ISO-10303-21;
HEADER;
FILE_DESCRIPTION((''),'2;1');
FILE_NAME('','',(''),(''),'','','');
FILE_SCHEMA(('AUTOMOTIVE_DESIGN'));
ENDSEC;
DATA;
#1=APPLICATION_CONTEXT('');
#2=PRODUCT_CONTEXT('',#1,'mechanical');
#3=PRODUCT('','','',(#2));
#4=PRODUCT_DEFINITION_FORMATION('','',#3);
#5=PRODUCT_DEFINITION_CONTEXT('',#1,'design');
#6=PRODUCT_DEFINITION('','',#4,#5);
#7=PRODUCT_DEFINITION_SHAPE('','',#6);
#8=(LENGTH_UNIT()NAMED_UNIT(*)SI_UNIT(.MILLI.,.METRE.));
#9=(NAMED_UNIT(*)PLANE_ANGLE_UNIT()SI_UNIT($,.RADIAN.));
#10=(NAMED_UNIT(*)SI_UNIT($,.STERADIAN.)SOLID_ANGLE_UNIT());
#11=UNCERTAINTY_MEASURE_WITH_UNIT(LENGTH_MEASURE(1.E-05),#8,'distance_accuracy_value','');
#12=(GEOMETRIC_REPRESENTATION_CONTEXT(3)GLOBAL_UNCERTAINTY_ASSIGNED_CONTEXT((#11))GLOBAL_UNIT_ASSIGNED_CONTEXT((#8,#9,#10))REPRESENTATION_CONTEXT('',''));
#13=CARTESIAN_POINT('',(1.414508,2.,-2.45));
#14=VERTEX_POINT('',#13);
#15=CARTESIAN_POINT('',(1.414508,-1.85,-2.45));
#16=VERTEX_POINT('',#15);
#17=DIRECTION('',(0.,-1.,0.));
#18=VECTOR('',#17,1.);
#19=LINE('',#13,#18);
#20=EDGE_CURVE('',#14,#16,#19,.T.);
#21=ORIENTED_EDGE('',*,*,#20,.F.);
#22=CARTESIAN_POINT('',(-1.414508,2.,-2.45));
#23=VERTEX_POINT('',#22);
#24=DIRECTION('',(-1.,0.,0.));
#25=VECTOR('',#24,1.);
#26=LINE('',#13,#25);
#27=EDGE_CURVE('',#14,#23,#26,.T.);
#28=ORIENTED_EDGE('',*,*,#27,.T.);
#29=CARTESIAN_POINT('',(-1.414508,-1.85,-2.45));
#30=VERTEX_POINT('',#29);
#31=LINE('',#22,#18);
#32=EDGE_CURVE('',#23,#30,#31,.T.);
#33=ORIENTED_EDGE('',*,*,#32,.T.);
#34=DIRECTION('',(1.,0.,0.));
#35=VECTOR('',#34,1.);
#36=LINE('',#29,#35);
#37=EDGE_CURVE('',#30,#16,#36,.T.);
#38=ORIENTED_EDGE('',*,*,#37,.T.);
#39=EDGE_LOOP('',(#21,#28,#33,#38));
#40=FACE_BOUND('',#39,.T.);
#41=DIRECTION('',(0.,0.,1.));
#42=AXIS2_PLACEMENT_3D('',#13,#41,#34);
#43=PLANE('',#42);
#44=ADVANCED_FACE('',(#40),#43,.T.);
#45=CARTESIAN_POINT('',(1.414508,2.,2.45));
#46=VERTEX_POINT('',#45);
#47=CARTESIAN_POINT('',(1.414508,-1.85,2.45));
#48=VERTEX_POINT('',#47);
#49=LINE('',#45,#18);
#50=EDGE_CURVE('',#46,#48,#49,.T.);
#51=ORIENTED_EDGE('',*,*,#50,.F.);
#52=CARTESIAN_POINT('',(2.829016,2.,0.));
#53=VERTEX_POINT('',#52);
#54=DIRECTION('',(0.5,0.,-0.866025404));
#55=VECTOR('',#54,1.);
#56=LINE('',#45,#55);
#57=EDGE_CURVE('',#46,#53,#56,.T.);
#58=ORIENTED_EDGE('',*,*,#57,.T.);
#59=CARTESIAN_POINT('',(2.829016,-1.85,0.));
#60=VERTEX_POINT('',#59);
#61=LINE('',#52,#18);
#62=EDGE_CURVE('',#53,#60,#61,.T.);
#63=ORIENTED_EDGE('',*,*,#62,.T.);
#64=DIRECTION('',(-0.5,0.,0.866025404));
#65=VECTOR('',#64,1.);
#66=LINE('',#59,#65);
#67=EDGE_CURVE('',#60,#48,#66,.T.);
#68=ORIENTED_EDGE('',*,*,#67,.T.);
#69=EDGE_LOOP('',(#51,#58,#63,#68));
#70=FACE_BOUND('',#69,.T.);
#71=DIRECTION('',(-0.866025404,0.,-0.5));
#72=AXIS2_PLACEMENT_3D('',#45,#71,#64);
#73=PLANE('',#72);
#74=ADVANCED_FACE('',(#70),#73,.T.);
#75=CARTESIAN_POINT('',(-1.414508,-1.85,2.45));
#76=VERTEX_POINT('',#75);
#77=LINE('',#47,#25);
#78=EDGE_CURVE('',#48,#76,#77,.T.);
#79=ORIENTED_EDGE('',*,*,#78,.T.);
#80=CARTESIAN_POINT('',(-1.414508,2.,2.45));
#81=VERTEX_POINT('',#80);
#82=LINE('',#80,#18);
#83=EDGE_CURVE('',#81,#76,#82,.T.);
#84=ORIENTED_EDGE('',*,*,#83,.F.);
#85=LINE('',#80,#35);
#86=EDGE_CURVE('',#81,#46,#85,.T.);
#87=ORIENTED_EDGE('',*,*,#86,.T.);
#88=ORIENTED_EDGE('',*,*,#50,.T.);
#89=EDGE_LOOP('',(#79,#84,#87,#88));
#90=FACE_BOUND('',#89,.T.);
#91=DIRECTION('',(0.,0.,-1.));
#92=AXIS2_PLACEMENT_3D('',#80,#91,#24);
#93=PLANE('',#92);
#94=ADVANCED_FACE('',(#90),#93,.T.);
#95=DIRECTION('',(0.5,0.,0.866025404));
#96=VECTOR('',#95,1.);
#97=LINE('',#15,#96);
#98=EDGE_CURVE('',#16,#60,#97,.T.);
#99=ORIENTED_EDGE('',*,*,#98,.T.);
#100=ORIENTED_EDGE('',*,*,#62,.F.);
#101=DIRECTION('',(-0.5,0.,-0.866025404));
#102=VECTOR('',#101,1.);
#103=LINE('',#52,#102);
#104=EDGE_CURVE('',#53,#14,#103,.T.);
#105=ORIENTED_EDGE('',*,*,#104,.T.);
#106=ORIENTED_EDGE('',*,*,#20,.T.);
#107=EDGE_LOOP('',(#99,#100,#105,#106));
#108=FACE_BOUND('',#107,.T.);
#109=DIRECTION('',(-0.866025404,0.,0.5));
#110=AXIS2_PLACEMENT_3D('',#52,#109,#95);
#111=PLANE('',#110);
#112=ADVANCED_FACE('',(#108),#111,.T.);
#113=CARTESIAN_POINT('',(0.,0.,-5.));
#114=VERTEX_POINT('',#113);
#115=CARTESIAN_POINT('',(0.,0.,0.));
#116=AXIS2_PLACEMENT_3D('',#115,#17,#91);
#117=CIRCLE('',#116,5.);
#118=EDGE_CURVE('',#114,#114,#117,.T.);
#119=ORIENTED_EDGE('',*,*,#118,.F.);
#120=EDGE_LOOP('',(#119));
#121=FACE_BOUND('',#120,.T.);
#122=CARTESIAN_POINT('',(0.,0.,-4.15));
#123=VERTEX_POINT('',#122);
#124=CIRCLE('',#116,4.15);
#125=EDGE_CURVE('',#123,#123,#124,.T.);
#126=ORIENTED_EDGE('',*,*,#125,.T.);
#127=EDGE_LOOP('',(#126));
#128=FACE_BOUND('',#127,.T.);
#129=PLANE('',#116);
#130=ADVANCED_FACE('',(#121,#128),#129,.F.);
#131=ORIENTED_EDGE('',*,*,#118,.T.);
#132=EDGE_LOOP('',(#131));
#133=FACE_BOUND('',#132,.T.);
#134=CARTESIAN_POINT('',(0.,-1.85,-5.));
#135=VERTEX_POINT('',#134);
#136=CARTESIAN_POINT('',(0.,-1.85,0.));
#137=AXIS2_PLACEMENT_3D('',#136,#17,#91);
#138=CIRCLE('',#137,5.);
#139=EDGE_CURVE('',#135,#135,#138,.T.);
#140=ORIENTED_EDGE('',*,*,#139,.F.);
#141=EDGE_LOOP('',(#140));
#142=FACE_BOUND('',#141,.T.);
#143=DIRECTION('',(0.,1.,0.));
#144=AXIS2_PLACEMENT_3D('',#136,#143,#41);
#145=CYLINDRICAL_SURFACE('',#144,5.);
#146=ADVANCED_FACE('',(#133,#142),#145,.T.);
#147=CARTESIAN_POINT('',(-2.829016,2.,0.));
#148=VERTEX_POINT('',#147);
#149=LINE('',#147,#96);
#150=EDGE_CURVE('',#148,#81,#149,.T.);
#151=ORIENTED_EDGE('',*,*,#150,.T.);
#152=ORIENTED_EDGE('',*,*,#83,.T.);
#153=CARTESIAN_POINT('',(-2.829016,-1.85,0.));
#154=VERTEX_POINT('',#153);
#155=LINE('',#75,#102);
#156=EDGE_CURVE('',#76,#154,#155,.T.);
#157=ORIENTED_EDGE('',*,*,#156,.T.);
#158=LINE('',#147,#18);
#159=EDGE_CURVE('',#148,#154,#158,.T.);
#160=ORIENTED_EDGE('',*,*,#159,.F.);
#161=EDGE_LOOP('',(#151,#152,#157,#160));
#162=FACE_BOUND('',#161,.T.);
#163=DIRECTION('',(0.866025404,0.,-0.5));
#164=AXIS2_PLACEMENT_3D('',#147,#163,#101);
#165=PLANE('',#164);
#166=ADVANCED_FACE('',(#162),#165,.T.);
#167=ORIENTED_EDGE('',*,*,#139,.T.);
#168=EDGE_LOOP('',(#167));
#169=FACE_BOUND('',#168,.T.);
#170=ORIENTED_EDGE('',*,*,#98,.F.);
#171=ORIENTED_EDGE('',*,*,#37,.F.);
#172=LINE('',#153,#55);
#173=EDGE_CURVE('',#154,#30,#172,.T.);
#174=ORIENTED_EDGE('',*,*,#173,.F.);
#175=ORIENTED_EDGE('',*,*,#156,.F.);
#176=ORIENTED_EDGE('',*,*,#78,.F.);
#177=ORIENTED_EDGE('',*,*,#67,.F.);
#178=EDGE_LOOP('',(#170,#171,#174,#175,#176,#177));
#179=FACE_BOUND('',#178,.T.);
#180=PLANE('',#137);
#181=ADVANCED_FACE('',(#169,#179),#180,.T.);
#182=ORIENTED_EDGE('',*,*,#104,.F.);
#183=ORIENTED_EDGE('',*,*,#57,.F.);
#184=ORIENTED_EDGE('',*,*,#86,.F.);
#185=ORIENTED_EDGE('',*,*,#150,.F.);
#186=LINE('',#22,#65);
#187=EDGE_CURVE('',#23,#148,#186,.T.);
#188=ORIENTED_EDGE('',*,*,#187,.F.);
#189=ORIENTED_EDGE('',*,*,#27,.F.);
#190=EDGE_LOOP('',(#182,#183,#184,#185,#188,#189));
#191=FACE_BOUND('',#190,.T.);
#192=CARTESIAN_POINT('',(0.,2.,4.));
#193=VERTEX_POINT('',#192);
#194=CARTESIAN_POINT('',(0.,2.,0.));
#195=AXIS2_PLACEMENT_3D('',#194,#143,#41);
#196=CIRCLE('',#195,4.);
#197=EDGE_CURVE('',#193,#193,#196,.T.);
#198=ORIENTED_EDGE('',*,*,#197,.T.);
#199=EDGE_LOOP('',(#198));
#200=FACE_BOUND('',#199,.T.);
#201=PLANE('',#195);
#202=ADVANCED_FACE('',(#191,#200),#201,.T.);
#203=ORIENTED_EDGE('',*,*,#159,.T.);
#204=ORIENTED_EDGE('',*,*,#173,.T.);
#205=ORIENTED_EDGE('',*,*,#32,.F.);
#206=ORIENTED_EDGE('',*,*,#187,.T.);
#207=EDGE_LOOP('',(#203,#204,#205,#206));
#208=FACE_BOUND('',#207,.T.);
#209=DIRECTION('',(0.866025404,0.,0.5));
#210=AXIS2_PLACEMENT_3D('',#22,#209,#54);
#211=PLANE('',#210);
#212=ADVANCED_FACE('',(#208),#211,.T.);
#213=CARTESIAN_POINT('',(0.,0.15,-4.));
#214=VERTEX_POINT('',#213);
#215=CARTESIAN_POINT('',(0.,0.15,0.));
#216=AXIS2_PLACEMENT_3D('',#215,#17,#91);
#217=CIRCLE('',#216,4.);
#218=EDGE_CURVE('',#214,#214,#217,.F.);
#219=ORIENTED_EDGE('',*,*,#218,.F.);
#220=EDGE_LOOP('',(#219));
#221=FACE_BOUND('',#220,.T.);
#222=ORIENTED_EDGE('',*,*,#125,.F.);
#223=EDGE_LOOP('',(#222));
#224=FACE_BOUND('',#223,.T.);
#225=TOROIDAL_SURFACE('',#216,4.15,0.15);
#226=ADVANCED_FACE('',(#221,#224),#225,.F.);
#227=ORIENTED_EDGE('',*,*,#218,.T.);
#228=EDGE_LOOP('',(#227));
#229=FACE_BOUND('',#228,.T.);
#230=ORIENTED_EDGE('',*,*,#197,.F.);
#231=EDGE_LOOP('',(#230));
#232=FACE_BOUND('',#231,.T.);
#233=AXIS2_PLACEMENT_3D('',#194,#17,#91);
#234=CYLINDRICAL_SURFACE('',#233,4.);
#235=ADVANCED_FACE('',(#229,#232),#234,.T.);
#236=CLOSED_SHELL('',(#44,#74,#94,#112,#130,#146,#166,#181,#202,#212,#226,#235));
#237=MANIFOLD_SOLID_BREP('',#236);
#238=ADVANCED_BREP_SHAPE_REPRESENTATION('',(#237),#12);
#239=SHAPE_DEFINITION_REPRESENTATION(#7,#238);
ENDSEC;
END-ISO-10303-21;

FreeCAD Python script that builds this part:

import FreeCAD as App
import Part
import Sketcher
from FreeCAD import Vector
Q = App.Units.Quantity


def edges_at(feature, points):
    """Names of the edges that pass closest to the given points."""
    edges = feature.Shape.Edges
    near = lambda p: min(range(len(edges)), key=lambda i: edges[i].distToShape(Part.Vertex(*p))[0])
    return sorted({f"Edge{near(p) + 1}" for p in points})


def add_polygon(sketch, points):
    """Adds a closed chain of lines whose ends are joined by coincident constraints."""
    first, n = sketch.GeometryCount, len(points)
    for a, b in zip(points, points[1:] + points[:1]):
        sketch.addGeometry(Part.LineSegment(App.Vector(*a, 0), App.Vector(*b, 0)), False)
    for i in range(n):
        sketch.addConstraint(Sketcher.Constraint("Coincident", first + i, 2, first + (i + 1) % n, 1))

doc = App.newDocument("Part")
body = doc.addObject("PartDesign::Body", "Body")

sketch1 = body.newObject("Sketcher::SketchObject", "Sketch")
sketch1.AttachmentSupport = (doc.getObject("XZ_Plane"), [""])
sketch1.MapMode = "FlatFace"
sketch1.addGeometry(Part.Circle(Vector(0, 0, 0), Vector(0, 0, 1), 4), False)
add_polygon(sketch1, [(1.4, -2.5), (2.8, 0), (1.4, 2.5), (-1.4, 2.5), (-2.8, 0), (-1.4, -2.5)])
sketch1.addConstraint(Sketcher.Constraint("Horizontal", 3))
sketch1.addConstraint(Sketcher.Constraint("Horizontal", 6))
sketch1.addConstraint(Sketcher.Constraint("Coincident", 0, 3, -1, 1))
sketch1.addConstraint(Sketcher.Constraint("Symmetric", 1, 2, 4, 2, -1, 1))
sketch1.addConstraint(Sketcher.Constraint("Symmetric", 2, 2, 5, 2, -1, 1))
sketch1.addConstraint(Sketcher.Constraint("PointOnObject", 1, 2, -1))
sketch1.addConstraint(Sketcher.Constraint("Parallel", 1, 4))
sketch1.addConstraint(Sketcher.Constraint("Vertical", 3, 2, 5, 2))
sketch1.addConstraint(Sketcher.Constraint("Diameter", 0, Q("8 mm")))
sketch1.addConstraint(Sketcher.Constraint("Angle", 1, Q("60 deg")))
sketch1.addConstraint(Sketcher.Constraint("DistanceY", 5, 2, 3, 2, Q("4.9 mm")))
sketch1.addConstraint(Sketcher.Constraint("DistanceX", 3, 2, 3, 1, Q("2.829016 mm")))
pad1 = body.newObject("PartDesign::Pad", "Pad")
pad1.Profile = sketch1
pad1.Length = 2
pad1.Reversed = True

sketch2 = body.newObject("Sketcher::SketchObject", "Sketch001")
sketch2.AttachmentSupport = (doc.getObject("XZ_Plane"), [""])
sketch2.MapMode = "FlatFace"
sketch2.addGeometry(Part.Circle(Vector(0, 0, 0), Vector(0, 0, 1), 5), False)
add_polygon(sketch2, [(1.4, 2.5), (2.8, 0), (1.4, -2.5), (-1.4, -2.5), (-2.8, 0), (-1.4, 2.5)])
sketch2.addConstraint(Sketcher.Constraint("Horizontal", 3))
sketch2.addConstraint(Sketcher.Constraint("Horizontal", 6))
sketch2.addConstraint(Sketcher.Constraint("Coincident", 0, 3, -1, 1))
sketch2.addConstraint(Sketcher.Constraint("Symmetric", 1, 2, 4, 2, -1, 1))
sketch2.addConstraint(Sketcher.Constraint("Symmetric", 2, 2, 5, 2, -1, 1))
sketch2.addConstraint(Sketcher.Constraint("PointOnObject", 1, 2, -1))
sketch2.addConstraint(Sketcher.Constraint("Parallel", 1, 4))
sketch2.addConstraint(Sketcher.Constraint("Vertical", 3, 2, 5, 2))
sketch2.addConstraint(Sketcher.Constraint("Diameter", 0, Q("10 mm")))
sketch2.addConstraint(Sketcher.Constraint("Angle", 1, Q("-60 deg")))
sketch2.addConstraint(Sketcher.Constraint("DistanceY", 3, 2, 5, 2, Q("4.9 mm")))
sketch2.addConstraint(Sketcher.Constraint("DistanceX", 3, 2, 3, 1, Q("2.829016 mm")))
pad2 = body.newObject("PartDesign::Pad", "Pad001")
pad2.Profile = sketch2
pad2.Length = 1.85
doc.recompute()

fillet = body.newObject("PartDesign::Fillet", "Fillet")
fillet.Base = (pad2, edges_at(pad2, [(0, 0, -4)]))
fillet.Radius = 0.15

doc.recompute()
